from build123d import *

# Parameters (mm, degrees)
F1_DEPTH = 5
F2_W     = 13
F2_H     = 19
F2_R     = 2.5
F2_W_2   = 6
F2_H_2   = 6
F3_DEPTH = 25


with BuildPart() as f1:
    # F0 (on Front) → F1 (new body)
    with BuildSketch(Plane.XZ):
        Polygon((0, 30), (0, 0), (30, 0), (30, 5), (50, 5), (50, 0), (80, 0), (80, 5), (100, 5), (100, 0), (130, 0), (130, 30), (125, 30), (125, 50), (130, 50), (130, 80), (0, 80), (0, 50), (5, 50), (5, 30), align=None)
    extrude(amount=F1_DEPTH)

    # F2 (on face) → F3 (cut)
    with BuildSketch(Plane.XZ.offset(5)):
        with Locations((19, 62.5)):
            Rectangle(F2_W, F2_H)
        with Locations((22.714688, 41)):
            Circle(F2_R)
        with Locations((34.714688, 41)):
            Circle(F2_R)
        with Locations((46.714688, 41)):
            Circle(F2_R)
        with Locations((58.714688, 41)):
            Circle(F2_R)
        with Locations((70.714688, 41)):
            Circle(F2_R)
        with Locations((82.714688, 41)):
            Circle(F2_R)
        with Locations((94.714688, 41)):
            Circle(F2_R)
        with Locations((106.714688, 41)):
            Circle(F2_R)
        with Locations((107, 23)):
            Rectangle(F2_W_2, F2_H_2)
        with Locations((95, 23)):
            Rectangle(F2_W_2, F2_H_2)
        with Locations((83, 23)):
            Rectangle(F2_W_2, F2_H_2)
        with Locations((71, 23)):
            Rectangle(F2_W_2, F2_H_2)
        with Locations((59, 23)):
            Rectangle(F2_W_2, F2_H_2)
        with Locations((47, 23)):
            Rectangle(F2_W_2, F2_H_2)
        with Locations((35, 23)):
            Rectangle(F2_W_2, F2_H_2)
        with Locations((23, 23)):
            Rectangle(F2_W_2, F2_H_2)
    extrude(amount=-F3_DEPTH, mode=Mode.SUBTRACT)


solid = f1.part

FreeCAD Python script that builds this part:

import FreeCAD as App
import Part
import Sketcher

V = App.Vector

doc = App.newDocument("Part")
params = doc.addObject("Spreadsheet::Sheet", "Params")
for row, (alias, value) in enumerate([
    ("sketch1_width", "30 mm"),
    ("sketch1_width2", "20 mm"),
    ("sketch1_width3", "5 mm"),
    ("pad1_length", "5 mm"),
    ("sketch2_diameter", "5 mm"),
    ("sketch2_width", "13 mm"),
    ("sketch2_width2", "6 mm"),
    ("sketch2_height", "19 mm"),
    ("pocket1_length", "25 mm"),
], start=1):
    params.set(f"A{row}", alias)
    params.set(f"B{row}", "=" + value)
    params.setAlias(f"B{row}", alias)

body = doc.addObject("PartDesign::Body", "Body")

# Sketch on XZ plane
sketch1 = body.newObject("Sketcher::SketchObject", "Sketch")
sketch1.AttachmentSupport = (doc.getObject("XZ_Plane"), [""])
sketch1.MapMode = "FlatFace"
sketch1.addGeometry([
    Part.LineSegment(V(0, 30, 0), V(0, 0, 0)),  # 0
    Part.LineSegment(V(0, 0, 0), V(30, 0, 0)),  # 1
    Part.LineSegment(V(30, 0, 0), V(30, 5, 0)),  # 2
    Part.LineSegment(V(30, 5, 0), V(50, 5, 0)),  # 3
    Part.LineSegment(V(50, 5, 0), V(50, 0, 0)),  # 4
    Part.LineSegment(V(50, 0, 0), V(80, 0, 0)),  # 5
    Part.LineSegment(V(80, 0, 0), V(80, 5, 0)),  # 6
    Part.LineSegment(V(80, 5, 0), V(100, 5, 0)),  # 7
    Part.LineSegment(V(100, 5, 0), V(100, 0, 0)),  # 8
    Part.LineSegment(V(100, 0, 0), V(130, 0, 0)),  # 9
    Part.LineSegment(V(130, 0, 0), V(130, 30, 0)),  # 10
    Part.LineSegment(V(130, 30, 0), V(125, 30, 0)),  # 11
    Part.LineSegment(V(125, 30, 0), V(125, 50, 0)),  # 12
    Part.LineSegment(V(125, 50, 0), V(130, 50, 0)),  # 13
    Part.LineSegment(V(130, 50, 0), V(130, 80, 0)),  # 14
    Part.LineSegment(V(130, 80, 0), V(0, 80, 0)),  # 15
    Part.LineSegment(V(0, 80, 0), V(0, 50, 0)),  # 16
    Part.LineSegment(V(0, 50, 0), V(5, 50, 0)),  # 17
    Part.LineSegment(V(5, 50, 0), V(5, 30, 0)),  # 18
    Part.LineSegment(V(5, 30, 0), V(0, 30, 0)),  # 19
], False)
sketch1.addConstraint([
    Sketcher.Constraint("Coincident", 0, 2, 1, 1),
    Sketcher.Constraint("Coincident", 1, 2, 2, 1),
    Sketcher.Constraint("Coincident", 2, 2, 3, 1),
    Sketcher.Constraint("Coincident", 3, 2, 4, 1),
    Sketcher.Constraint("Coincident", 4, 2, 5, 1),
    Sketcher.Constraint("Coincident", 5, 2, 6, 1),
    Sketcher.Constraint("Coincident", 6, 2, 7, 1),
    Sketcher.Constraint("Coincident", 7, 2, 8, 1),
    Sketcher.Constraint("Coincident", 8, 2, 9, 1),
    Sketcher.Constraint("Coincident", 9, 2, 10, 1),
    Sketcher.Constraint("Coincident", 10, 2, 11, 1),
    Sketcher.Constraint("Coincident", 11, 2, 12, 1),
    Sketcher.Constraint("Coincident", 12, 2, 13, 1),
    Sketcher.Constraint("Coincident", 13, 2, 14, 1),
    Sketcher.Constraint("Coincident", 14, 2, 15, 1),
    Sketcher.Constraint("Coincident", 15, 2, 16, 1),
    Sketcher.Constraint("Coincident", 16, 2, 17, 1),
    Sketcher.Constraint("Coincident", 17, 2, 18, 1),
    Sketcher.Constraint("Coincident", 18, 2, 19, 1),
    Sketcher.Constraint("Coincident", 19, 2, 0, 1),
    Sketcher.Constraint("Vertical", 0),
    Sketcher.Constraint("Horizontal", 1),
    Sketcher.Constraint("Vertical", 2),
    Sketcher.Constraint("Horizontal", 3),
    Sketcher.Constraint("Vertical", 4),
    Sketcher.Constraint("Horizontal", 5),
    Sketcher.Constraint("Vertical", 6),
    Sketcher.Constraint("Horizontal", 7),
    Sketcher.Constraint("Vertical", 8),
    Sketcher.Constraint("Horizontal", 9),
    Sketcher.Constraint("Vertical", 10),
    Sketcher.Constraint("Horizontal", 11),
    Sketcher.Constraint("Vertical", 12),
    Sketcher.Constraint("Horizontal", 13),
    Sketcher.Constraint("Vertical", 14),
    Sketcher.Constraint("Horizontal", 15),
    Sketcher.Constraint("Vertical", 16),
    Sketcher.Constraint("Horizontal", 17),
    Sketcher.Constraint("Vertical", 18),
    Sketcher.Constraint("Horizontal", 19),
    Sketcher.Constraint("Coincident", 0, 2, -1, 1),
    Sketcher.Constraint("PointOnObject", 4, 2, -1),
    Sketcher.Constraint("PointOnObject", 8, 2, -1),
    Sketcher.Constraint("PointOnObject", 15, 2, -2),
    Sketcher.Constraint("Horizontal", 3, 2, 6, 2),
    Sketcher.Constraint("Horizontal", 13, 2, 16, 2),
    Sketcher.Constraint("Horizontal", 11, 2, 18, 2),
    Sketcher.Constraint("Vertical", 10, 2, 13, 2),
    Sketcher.Constraint("Equal", 1, 5),
    Sketcher.Constraint("Equal", 3, 7),
    Sketcher.Constraint("Equal", 5, 9),
    Sketcher.Constraint("Equal", 13, 17),
    Sketcher.Constraint("Equal", 9, 0),
    Sketcher.Constraint("Equal", 19, 2),
    Sketcher.Constraint("Equal", 7, 12),
    Sketcher.Constraint("Equal", 10, 14),
    Sketcher.Constraint("DistanceX", 1, 1, 1, 2, 30.0),
    Sketcher.Constraint("DistanceX", 3, 1, 3, 2, 20.0),
    Sketcher.Constraint("DistanceX", 11, 2, 11, 1, 5.0),
])
sketch1.setExpression("Constraints[56]", "Params.sketch1_width")
sketch1.setExpression("Constraints[57]", "Params.sketch1_width2")
sketch1.setExpression("Constraints[58]", "Params.sketch1_width3")
pad1 = body.newObject("PartDesign::Pad", "Pad")
pad1.Profile = sketch1
pad1.setExpression("Length", "Params.pad1_length")

# Sketch on XZ plane
sketch2 = body.newObject("Sketcher::SketchObject", "Sketch001")
sketch2.AttachmentSupport = (doc.getObject("XZ_Plane"), [""])
sketch2.MapMode = "FlatFace"
sketch2.AttachmentOffset = App.Placement(V(0, 0, 5), App.Rotation())
sketch2.addGeometry([
    Part.LineSegment(V(12.5, 72, 0), V(12.5, 53, 0)),  # 0
    Part.LineSegment(V(12.5, 53, 0), V(25.5, 53, 0)),  # 1
    Part.LineSegment(V(25.5, 53, 0), V(25.5, 72, 0)),  # 2
    Part.LineSegment(V(25.5, 72, 0), V(12.5, 72, 0)),  # 3
    Part.Circle(V(22.714688, 41, 0), V(0, 0, 1), 2.5),  # 4
    Part.Circle(V(34.714688, 41, 0), V(0, 0, 1), 2.5),  # 5
    Part.Circle(V(46.714688, 41, 0), V(0, 0, 1), 2.5),  # 6
    Part.Circle(V(58.714688, 41, 0), V(0, 0, 1), 2.5),  # 7
    Part.Circle(V(70.714688, 41, 0), V(0, 0, 1), 2.5),  # 8
    Part.Circle(V(82.714688, 41, 0), V(0, 0, 1), 2.5),  # 9
    Part.Circle(V(94.714688, 41, 0), V(0, 0, 1), 2.5),  # 10
    Part.Circle(V(106.714688, 41, 0), V(0, 0, 1), 2.5),  # 11
    Part.LineSegment(V(104, 26, 0), V(104, 20, 0)),  # 12
    Part.LineSegment(V(104, 20, 0), V(110, 20, 0)),  # 13
    Part.LineSegment(V(110, 20, 0), V(110, 26, 0)),  # 14
    Part.LineSegment(V(110, 26, 0), V(104, 26, 0)),  # 15
    Part.LineSegment(V(92, 26, 0), V(92, 20, 0)),  # 16
    Part.LineSegment(V(92, 20, 0), V(98, 20, 0)),  # 17
    Part.LineSegment(V(98, 20, 0), V(98, 26, 0)),  # 18
    Part.LineSegment(V(98, 26, 0), V(92, 26, 0)),  # 19
    Part.LineSegment(V(80, 26, 0), V(80, 20, 0)),  # 20
    Part.LineSegment(V(80, 20, 0), V(86, 20, 0)),  # 21
    Part.LineSegment(V(86, 20, 0), V(86, 26, 0)),  # 22
    Part.LineSegment(V(86, 26, 0), V(80, 26, 0)),  # 23
    Part.LineSegment(V(68, 26, 0), V(68, 20, 0)),  # 24
    Part.LineSegment(V(68, 20, 0), V(74, 20, 0)),  # 25
    Part.LineSegment(V(74, 20, 0), V(74, 26, 0)),  # 26
    Part.LineSegment(V(74, 26, 0), V(68, 26, 0)),  # 27
    Part.LineSegment(V(56, 26, 0), V(56, 20, 0)),  # 28
    Part.LineSegment(V(56, 20, 0), V(62, 20, 0)),  # 29
    Part.LineSegment(V(62, 20, 0), V(62, 26, 0)),  # 30
    Part.LineSegment(V(62, 26, 0), V(56, 26, 0)),  # 31
    Part.LineSegment(V(44, 26, 0), V(44, 20, 0)),  # 32
    Part.LineSegment(V(44, 20, 0), V(50, 20, 0)),  # 33
    Part.LineSegment(V(50, 20, 0), V(50, 26, 0)),  # 34
    Part.LineSegment(V(50, 26, 0), V(44, 26, 0)),  # 35
    Part.LineSegment(V(32, 26, 0), V(32, 20, 0)),  # 36
    Part.LineSegment(V(32, 20, 0), V(38, 20, 0)),  # 37
    Part.LineSegment(V(38, 20, 0), V(38, 26, 0)),  # 38
    Part.LineSegment(V(38, 26, 0), V(32, 26, 0)),  # 39
    Part.LineSegment(V(20, 26, 0), V(20, 20, 0)),  # 40
    Part.LineSegment(V(20, 20, 0), V(26, 20, 0)),  # 41
    Part.LineSegment(V(26, 20, 0), V(26, 26, 0)),  # 42
    Part.LineSegment(V(26, 26, 0), V(20, 26, 0)),  # 43
], False)
sketch2.addConstraint([
    Sketcher.Constraint("Coincident", 0, 2, 1, 1),
    Sketcher.Constraint("Coincident", 1, 2, 2, 1),
    Sketcher.Constraint("Coincident", 2, 2, 3, 1),
    Sketcher.Constraint("Coincident", 3, 2, 0, 1),
    Sketcher.Constraint("Coincident", 12, 2, 13, 1),
    Sketcher.Constraint("Coincident", 13, 2, 14, 1),
    Sketcher.Constraint("Coincident", 14, 2, 15, 1),
    Sketcher.Constraint("Coincident", 15, 2, 12, 1),
    Sketcher.Constraint("Coincident", 16, 2, 17, 1),
    Sketcher.Constraint("Coincident", 17, 2, 18, 1),
    Sketcher.Constraint("Coincident", 18, 2, 19, 1),
    Sketcher.Constraint("Coincident", 19, 2, 16, 1),
    Sketcher.Constraint("Coincident", 20, 2, 21, 1),
    Sketcher.Constraint("Coincident", 21, 2, 22, 1),
    Sketcher.Constraint("Coincident", 22, 2, 23, 1),
    Sketcher.Constraint("Coincident", 23, 2, 20, 1),
    Sketcher.Constraint("Coincident", 24, 2, 25, 1),
    Sketcher.Constraint("Coincident", 25, 2, 26, 1),
    Sketcher.Constraint("Coincident", 26, 2, 27, 1),
    Sketcher.Constraint("Coincident", 27, 2, 24, 1),
    Sketcher.Constraint("Coincident", 28, 2, 29, 1),
    Sketcher.Constraint("Coincident", 29, 2, 30, 1),
    Sketcher.Constraint("Coincident", 30, 2, 31, 1),
    Sketcher.Constraint("Coincident", 31, 2, 28, 1),
    Sketcher.Constraint("Coincident", 32, 2, 33, 1),
    Sketcher.Constraint("Coincident", 33, 2, 34, 1),
    Sketcher.Constraint("Coincident", 34, 2, 35, 1),
    Sketcher.Constraint("Coincident", 35, 2, 32, 1),
    Sketcher.Constraint("Coincident", 36, 2, 37, 1),
    Sketcher.Constraint("Coincident", 37, 2, 38, 1),
    Sketcher.Constraint("Coincident", 38, 2, 39, 1),
    Sketcher.Constraint("Coincident", 39, 2, 36, 1),
    Sketcher.Constraint("Coincident", 40, 2, 41, 1),
    Sketcher.Constraint("Coincident", 41, 2, 42, 1),
    Sketcher.Constraint("Coincident", 42, 2, 43, 1),
    Sketcher.Constraint("Coincident", 43, 2, 40, 1),
    Sketcher.Constraint("Vertical", 0),
    Sketcher.Constraint("Horizontal", 1),
    Sketcher.Constraint("Vertical", 2),
    Sketcher.Constraint("Horizontal", 3),
    Sketcher.Constraint("Vertical", 12),
    Sketcher.Constraint("Horizontal", 13),
    Sketcher.Constraint("Vertical", 14),
    Sketcher.Constraint("Horizontal", 15),
    Sketcher.Constraint("Vertical", 16),
    Sketcher.Constraint("Horizontal", 17),
    Sketcher.Constraint("Vertical", 18),
    Sketcher.Constraint("Horizontal", 19),
    Sketcher.Constraint("Vertical", 20),
    Sketcher.Constraint("Horizontal", 21),
    Sketcher.Constraint("Vertical", 22),
    Sketcher.Constraint("Horizontal", 23),
    Sketcher.Constraint("Vertical", 24),
    Sketcher.Constraint("Horizontal", 25),
    Sketcher.Constraint("Vertical", 26),
    Sketcher.Constraint("Horizontal", 27),
    Sketcher.Constraint("Vertical", 28),
    Sketcher.Constraint("Horizontal", 29),
    Sketcher.Constraint("Vertical", 30),
    Sketcher.Constraint("Horizontal", 31),
    Sketcher.Constraint("Vertical", 32),
    Sketcher.Constraint("Horizontal", 33),
    Sketcher.Constraint("Vertical", 34),
    Sketcher.Constraint("Horizontal", 35),
    Sketcher.Constraint("Vertical", 36),
    Sketcher.Constraint("Horizontal", 37),
    Sketcher.Constraint("Vertical", 38),
    Sketcher.Constraint("Horizontal", 39),
    Sketcher.Constraint("Vertical", 40),
    Sketcher.Constraint("Horizontal", 41),
    Sketcher.Constraint("Vertical", 42),
    Sketcher.Constraint("Horizontal", 43),
    Sketcher.Constraint("Equal", 4, 5),
    Sketcher.Constraint("Equal", 5, 6),
    Sketcher.Constraint("Equal", 6, 7),
    Sketcher.Constraint("Equal", 7, 8),
    Sketcher.Constraint("Equal", 8, 9),
    Sketcher.Constraint("Equal", 9, 10),
    Sketcher.Constraint("Equal", 10, 11),
    Sketcher.Constraint("Horizontal", 4, 3, 5, 3),
    Sketcher.Constraint("Horizontal", 5, 3, 6, 3),
    Sketcher.Constraint("Horizontal", 6, 3, 7, 3),
    Sketcher.Constraint("Horizontal", 7, 3, 8, 3),
    Sketcher.Constraint("Horizontal", 8, 3, 9, 3),
    Sketcher.Constraint("Horizontal", 9, 3, 10, 3),
    Sketcher.Constraint("Horizontal", 10, 3, 11, 3),
    Sketcher.Constraint("Horizontal", 13, 2, 16, 2),
    Sketcher.Constraint("Horizontal", 15, 2, 18, 2),
    Sketcher.Constraint("Horizontal", 17, 2, 20, 2),
    Sketcher.Constraint("Horizontal", 19, 2, 22, 2),
    Sketcher.Constraint("Horizontal", 21, 2, 24, 2),
    Sketcher.Constraint("Horizontal", 23, 2, 26, 2),
    Sketcher.Constraint("Horizontal", 25, 2, 28, 2),
    Sketcher.Constraint("Horizontal", 27, 2, 30, 2),
    Sketcher.Constraint("Horizontal", 29, 2, 32, 2),
    Sketcher.Constraint("Horizontal", 31, 2, 34, 2),
    Sketcher.Constraint("Horizontal", 33, 2, 36, 2),
    Sketcher.Constraint("Horizontal", 35, 2, 38, 2),
    Sketcher.Constraint("Horizontal", 37, 2, 40, 2),
    Sketcher.Constraint("Horizontal", 39, 2, 42, 2),
    Sketcher.Constraint("Equal", 15, 17),
    Sketcher.Constraint("Equal", 19, 21),
    Sketcher.Constraint("Equal", 23, 25),
    Sketcher.Constraint("Equal", 27, 29),
    Sketcher.Constraint("Equal", 31, 33),
    Sketcher.Constraint("Equal", 35, 37),
    Sketcher.Constraint("Equal", 39, 41),
    Sketcher.Constraint("Equal", 43, 12),
    Sketcher.Constraint("Diameter", 4, 5.0),
    Sketcher.Constraint("DistanceX", 1, 1, 1, 2, 13.0),
    Sketcher.Constraint("DistanceX", 13, 1, 13, 2, 6.0),
    Sketcher.Constraint("DistanceY", 0, 2, 0, 1, 19.0),
    Sketcher.Constraint("DistanceY", -1, 1, 4, 3, 41.0),
    Sketcher.Constraint("DistanceY", -1, 1, 0, 2, 53.0),
    Sketcher.Constraint("DistanceX", -1, 1, 12, 2, 104.0),
    Sketcher.Constraint("DistanceY", -1, 1, 12, 2, 20.0),
    Sketcher.Constraint("DistanceX", -1, 1, 16, 2, 92.0),
    Sketcher.Constraint("DistanceX", -1, 1, 20, 2, 80.0),
    Sketcher.Constraint("DistanceX", -1, 1, 24, 2, 68.0),
    Sketcher.Constraint("DistanceX", -1, 1, 28, 2, 56.0),
    Sketcher.Constraint("DistanceX", -1, 1, 32, 2, 44.0),
    Sketcher.Constraint("DistanceX", -1, 1, 36, 2, 32.0),
    Sketcher.Constraint("DistanceX", -1, 1, 40, 2, 20.0),
    Sketcher.Constraint("DistanceX", 4, 3, 5, 3, 12.0),
    Sketcher.Constraint("DistanceX", 5, 3, 6, 3, 12.0),
    Sketcher.Constraint("DistanceX", 6, 3, 7, 3, 12.0),
    Sketcher.Constraint("DistanceX", 7, 3, 8, 3, 12.0),
    Sketcher.Constraint("DistanceX", 8, 3, 9, 3, 12.0),
    Sketcher.Constraint("DistanceX", 9, 3, 10, 3, 12.0),
    Sketcher.Constraint("DistanceX", 10, 3, 11, 3, 12.0),
    Sketcher.Constraint("DistanceX", -1, 1, 0, 2, 12.5),
    Sketcher.Constraint("DistanceX", -1, 1, 5, 3, 34.714688),
])
sketch2.setExpression("Constraints[108]", "Params.sketch2_diameter")
sketch2.setExpression("Constraints[109]", "Params.sketch2_width")
sketch2.setExpression("Constraints[110]", "Params.sketch2_width2")
sketch2.setExpression("Constraints[111]", "Params.sketch2_height")
pocket1 = body.newObject("PartDesign::Pocket", "Pocket")
pocket1.Profile = sketch2
pocket1.setExpression("Length", "Params.pocket1_length")

doc.recompute()
